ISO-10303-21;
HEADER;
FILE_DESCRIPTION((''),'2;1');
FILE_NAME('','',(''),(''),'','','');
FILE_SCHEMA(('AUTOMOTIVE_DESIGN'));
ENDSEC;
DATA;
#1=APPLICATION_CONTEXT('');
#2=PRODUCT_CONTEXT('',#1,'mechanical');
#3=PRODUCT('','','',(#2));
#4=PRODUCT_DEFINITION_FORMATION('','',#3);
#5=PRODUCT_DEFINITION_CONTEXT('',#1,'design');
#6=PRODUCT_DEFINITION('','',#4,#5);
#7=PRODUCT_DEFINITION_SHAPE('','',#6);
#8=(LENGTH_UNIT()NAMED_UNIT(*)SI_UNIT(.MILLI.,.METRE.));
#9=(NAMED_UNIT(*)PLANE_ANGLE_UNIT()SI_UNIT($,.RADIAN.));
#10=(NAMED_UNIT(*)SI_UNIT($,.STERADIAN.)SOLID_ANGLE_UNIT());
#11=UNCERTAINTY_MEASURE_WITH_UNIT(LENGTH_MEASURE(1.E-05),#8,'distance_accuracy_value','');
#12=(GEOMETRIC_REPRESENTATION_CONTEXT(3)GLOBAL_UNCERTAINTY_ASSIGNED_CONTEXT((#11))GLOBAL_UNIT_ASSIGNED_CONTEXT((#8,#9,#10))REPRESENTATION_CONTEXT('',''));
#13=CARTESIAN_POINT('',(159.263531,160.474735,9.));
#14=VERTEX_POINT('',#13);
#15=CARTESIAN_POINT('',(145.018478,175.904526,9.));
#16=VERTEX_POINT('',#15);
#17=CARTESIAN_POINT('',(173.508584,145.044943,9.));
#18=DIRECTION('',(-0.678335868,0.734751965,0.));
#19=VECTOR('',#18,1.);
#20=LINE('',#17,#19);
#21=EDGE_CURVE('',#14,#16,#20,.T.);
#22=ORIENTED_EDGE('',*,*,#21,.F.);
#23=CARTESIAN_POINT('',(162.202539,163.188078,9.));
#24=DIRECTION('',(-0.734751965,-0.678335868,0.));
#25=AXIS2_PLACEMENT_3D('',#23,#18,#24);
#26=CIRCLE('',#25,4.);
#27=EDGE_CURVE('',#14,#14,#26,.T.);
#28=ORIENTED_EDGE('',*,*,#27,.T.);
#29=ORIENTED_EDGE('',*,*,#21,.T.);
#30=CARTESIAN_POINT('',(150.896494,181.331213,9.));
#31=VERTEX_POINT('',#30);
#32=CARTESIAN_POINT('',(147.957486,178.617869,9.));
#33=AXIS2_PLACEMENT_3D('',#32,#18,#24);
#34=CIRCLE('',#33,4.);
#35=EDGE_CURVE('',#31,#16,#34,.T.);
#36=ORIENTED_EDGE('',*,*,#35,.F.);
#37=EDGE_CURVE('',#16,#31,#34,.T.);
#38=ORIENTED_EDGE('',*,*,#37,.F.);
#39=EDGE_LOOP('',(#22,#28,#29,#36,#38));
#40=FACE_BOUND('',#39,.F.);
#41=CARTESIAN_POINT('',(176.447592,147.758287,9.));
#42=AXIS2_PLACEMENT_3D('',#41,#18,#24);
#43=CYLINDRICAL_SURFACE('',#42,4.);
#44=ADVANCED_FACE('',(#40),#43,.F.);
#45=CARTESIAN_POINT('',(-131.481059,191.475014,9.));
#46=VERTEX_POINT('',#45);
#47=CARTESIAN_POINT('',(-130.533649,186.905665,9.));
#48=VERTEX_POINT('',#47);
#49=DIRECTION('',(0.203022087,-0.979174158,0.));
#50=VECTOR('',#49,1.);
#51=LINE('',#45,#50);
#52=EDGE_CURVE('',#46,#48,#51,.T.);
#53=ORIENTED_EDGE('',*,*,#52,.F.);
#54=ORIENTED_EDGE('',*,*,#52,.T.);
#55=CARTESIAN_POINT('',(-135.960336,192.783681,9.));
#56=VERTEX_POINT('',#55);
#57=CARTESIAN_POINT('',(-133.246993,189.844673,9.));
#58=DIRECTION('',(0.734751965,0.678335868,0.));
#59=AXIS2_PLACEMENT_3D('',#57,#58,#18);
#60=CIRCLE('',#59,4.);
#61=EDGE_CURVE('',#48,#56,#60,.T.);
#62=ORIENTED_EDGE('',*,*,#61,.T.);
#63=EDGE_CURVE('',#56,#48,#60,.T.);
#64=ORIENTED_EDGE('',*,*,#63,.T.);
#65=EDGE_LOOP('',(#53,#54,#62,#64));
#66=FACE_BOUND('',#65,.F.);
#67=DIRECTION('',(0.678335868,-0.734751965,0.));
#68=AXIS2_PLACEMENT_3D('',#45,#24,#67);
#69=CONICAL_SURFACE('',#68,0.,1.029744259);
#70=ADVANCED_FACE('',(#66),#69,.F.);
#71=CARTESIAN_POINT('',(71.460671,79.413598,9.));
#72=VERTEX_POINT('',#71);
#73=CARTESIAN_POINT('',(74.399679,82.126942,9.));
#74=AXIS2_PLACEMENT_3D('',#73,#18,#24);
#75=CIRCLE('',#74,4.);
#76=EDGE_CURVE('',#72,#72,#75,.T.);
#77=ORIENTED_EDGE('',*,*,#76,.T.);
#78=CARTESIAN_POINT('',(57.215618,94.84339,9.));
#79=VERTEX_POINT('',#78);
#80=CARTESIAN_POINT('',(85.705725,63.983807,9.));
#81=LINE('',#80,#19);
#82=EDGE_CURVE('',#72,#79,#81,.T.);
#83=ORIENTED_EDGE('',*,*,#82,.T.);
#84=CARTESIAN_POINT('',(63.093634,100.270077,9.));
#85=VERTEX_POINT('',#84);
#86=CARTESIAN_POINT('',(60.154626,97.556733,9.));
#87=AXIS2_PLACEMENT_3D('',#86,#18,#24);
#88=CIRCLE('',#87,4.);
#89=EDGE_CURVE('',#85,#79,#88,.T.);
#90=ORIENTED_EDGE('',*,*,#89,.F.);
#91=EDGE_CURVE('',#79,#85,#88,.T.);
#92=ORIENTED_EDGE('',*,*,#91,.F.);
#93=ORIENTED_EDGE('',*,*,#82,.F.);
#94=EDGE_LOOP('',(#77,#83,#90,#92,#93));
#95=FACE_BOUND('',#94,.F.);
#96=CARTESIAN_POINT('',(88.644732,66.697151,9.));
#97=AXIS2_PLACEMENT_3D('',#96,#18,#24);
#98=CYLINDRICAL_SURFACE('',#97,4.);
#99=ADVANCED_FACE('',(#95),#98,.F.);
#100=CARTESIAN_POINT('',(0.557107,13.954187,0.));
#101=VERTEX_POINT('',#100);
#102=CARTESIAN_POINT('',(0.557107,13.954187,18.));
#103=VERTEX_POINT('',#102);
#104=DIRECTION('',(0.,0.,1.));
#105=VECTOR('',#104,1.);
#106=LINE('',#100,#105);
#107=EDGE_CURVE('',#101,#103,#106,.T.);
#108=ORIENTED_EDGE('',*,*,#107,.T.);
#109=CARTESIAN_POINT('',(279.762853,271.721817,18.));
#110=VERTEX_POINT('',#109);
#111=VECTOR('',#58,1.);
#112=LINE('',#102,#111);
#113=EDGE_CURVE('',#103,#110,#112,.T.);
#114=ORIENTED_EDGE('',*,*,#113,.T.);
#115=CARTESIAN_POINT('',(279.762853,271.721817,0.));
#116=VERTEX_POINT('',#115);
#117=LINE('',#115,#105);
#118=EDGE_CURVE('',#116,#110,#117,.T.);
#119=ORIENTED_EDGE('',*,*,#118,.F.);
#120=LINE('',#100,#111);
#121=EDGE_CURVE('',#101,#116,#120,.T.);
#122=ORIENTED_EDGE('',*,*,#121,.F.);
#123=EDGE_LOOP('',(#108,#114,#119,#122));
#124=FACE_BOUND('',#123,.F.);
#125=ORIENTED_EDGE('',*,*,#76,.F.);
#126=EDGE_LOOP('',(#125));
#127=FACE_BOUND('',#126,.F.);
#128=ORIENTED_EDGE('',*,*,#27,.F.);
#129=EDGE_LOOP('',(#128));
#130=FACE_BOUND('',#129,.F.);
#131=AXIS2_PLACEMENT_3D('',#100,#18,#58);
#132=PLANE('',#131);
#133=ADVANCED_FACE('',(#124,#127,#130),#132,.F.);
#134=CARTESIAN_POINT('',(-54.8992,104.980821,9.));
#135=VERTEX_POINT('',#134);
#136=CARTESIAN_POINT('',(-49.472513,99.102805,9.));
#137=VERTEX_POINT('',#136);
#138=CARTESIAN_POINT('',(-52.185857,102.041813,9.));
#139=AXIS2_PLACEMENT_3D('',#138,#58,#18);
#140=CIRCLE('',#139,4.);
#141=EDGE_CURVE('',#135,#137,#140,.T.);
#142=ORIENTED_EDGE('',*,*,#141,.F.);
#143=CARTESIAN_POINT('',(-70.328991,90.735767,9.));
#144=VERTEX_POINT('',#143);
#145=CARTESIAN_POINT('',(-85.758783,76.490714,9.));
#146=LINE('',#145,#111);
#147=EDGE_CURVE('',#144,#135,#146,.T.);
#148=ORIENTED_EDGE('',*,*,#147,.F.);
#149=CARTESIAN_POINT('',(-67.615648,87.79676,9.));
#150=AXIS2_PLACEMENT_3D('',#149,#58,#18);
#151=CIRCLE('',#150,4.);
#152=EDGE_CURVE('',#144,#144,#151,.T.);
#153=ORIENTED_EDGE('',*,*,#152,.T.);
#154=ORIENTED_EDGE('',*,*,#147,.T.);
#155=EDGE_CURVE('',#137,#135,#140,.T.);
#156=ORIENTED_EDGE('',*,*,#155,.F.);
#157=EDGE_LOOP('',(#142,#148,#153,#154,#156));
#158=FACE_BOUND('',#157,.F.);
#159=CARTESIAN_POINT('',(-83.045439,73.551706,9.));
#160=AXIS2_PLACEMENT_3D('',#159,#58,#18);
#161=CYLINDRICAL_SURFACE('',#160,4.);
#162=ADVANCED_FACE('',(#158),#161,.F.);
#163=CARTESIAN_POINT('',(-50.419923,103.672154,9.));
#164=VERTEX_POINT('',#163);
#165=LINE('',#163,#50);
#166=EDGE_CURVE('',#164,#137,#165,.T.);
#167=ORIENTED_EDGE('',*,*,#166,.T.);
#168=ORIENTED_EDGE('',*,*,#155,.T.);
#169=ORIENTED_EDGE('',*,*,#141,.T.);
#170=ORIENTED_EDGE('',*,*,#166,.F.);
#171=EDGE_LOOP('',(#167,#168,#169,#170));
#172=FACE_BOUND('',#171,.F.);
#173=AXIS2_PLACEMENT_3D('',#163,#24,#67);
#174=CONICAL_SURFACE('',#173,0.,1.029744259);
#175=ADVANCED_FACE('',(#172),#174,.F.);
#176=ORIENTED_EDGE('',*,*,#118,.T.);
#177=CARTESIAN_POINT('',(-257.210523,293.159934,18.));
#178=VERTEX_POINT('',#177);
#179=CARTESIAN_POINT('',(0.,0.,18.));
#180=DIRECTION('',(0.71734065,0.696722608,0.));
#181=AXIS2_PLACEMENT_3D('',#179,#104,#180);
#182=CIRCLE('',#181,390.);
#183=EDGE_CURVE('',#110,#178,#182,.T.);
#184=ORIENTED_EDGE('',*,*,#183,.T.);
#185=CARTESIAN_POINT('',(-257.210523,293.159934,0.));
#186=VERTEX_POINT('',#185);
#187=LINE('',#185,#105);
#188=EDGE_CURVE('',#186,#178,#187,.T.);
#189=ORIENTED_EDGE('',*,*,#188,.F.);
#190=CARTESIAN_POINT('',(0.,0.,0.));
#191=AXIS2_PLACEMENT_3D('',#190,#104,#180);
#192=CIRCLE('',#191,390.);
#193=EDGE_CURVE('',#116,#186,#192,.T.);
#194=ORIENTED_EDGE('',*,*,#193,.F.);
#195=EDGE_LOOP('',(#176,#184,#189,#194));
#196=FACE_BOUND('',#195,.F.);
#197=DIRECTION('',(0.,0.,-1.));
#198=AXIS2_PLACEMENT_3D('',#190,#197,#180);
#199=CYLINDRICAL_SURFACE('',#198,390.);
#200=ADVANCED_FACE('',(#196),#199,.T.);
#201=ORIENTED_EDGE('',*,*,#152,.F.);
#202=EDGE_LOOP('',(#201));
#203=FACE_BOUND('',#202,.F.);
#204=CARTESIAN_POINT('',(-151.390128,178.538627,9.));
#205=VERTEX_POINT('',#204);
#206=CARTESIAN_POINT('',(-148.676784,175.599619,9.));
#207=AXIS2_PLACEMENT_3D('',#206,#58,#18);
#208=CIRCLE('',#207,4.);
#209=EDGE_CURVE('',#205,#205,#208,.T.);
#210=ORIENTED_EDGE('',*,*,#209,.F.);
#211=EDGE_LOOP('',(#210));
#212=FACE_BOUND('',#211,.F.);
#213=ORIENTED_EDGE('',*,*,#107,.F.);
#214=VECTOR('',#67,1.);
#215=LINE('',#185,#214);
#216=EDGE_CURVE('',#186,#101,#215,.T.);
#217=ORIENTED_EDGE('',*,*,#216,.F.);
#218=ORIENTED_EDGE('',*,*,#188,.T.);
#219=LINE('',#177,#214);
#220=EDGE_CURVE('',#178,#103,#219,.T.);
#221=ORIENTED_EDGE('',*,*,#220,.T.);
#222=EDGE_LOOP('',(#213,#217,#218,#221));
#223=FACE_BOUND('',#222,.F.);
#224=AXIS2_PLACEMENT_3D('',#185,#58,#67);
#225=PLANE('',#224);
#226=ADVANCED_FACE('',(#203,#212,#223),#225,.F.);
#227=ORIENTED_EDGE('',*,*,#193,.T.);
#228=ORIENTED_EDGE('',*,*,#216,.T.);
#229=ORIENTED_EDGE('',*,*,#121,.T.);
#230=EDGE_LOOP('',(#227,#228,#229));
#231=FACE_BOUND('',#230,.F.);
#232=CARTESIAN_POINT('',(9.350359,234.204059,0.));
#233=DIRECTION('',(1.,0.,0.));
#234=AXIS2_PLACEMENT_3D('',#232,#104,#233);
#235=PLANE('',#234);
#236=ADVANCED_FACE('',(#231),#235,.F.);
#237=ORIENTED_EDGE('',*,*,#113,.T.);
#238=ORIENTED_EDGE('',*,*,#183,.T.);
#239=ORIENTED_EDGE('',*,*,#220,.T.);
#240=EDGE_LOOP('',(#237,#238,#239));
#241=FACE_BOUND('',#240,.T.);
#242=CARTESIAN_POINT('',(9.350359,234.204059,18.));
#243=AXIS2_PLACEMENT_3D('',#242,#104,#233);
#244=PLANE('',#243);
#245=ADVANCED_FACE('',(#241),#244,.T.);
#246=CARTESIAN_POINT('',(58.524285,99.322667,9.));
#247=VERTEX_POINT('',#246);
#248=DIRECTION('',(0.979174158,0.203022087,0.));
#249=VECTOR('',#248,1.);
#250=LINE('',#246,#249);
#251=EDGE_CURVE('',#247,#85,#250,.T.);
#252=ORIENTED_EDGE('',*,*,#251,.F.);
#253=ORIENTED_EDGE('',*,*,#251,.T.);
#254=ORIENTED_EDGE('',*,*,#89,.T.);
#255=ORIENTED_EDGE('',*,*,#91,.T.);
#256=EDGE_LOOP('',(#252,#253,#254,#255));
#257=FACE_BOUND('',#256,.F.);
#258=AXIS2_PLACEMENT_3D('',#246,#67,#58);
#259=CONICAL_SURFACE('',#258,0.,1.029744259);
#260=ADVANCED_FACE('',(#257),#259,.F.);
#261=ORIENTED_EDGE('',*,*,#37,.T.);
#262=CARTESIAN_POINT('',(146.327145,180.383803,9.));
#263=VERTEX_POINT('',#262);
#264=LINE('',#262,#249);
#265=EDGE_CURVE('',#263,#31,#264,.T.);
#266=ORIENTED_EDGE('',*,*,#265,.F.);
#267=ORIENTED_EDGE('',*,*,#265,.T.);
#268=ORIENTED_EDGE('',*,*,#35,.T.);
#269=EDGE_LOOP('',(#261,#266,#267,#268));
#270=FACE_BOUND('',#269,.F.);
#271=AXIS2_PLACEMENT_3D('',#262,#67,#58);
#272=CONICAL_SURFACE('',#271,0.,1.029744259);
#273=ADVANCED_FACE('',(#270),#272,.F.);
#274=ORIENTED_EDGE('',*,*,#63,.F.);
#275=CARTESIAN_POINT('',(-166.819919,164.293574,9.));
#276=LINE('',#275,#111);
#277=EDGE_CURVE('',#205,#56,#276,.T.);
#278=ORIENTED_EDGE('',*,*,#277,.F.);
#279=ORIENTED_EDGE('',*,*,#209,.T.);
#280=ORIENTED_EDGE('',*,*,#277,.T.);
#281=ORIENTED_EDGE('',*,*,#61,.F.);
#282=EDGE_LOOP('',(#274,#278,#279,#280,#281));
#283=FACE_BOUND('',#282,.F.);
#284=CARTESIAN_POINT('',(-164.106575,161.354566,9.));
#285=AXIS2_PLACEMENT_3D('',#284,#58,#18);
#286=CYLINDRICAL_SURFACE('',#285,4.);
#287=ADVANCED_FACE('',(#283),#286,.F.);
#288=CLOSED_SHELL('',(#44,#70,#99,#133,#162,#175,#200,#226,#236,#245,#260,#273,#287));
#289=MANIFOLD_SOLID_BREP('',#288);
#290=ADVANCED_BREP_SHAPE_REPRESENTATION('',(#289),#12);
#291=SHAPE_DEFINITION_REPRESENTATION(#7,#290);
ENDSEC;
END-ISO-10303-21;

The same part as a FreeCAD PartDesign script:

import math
import FreeCAD as App
import Part
import Sketcher
from FreeCAD import Vector

doc = App.newDocument("Part")
body = doc.addObject("PartDesign::Body", "Body")

# Sketch on XY plane
sketch1 = body.newObject("Sketcher::SketchObject", "Sketch")
sketch1.AttachmentSupport = (doc.getObject("XY_Plane"), [""])
sketch1.MapMode = "FlatFace"
sketch1.addGeometry([
    Part.ArcOfCircle(Part.Circle(Vector(0, 0, 0), Vector(0, 0, 1), 390), math.radians(44), math.radians(131)),
    Part.LineSegment(Vector(-257, 293, 0), Vector(1, 14, 0)),
    Part.LineSegment(Vector(1, 14, 0), Vector(280, 272, 0)),
], False)
sketch1.addConstraint([
    Sketcher.Constraint("Coincident", 0, 2, 1, 1),
    Sketcher.Constraint("Coincident", 1, 2, 2, 1),
    Sketcher.Constraint("Coincident", 2, 2, 0, 1),
    Sketcher.Constraint("Coincident", 0, 3, -1, 1),
    Sketcher.Constraint("Perpendicular", 1, 2),
    Sketcher.Constraint("Equal", 1, 2),
    Sketcher.Constraint("Radius", 0, 390.0),
    Sketcher.Constraint("Distance", 1, 380.0),
    Sketcher.Constraint("DistanceY", 1, 2, 2, 2, 257.76763),
])
pad1 = body.newObject("PartDesign::Pad", "Pad")
pad1.Profile = sketch1
pad1.Length = 18

# Sketch on an angled plane
sketch2 = body.newObject("Sketcher::SketchObject", "Sketch001")
sketch2.Placement = App.Placement(Vector(-6.69854, 7.255647, 0), App.Rotation(Vector(0.734751965, 0.678335868, 0), Vector(0, 0, 1), Vector(0.678335868, -0.734751965, 0), "ZXY"))
sketch2.addGeometry([
    Part.Circle(Vector(110.4, 9, 0), Vector(0, 0, 1), 4),
    Part.Circle(Vector(229.9, 9, 0), Vector(0, 0, 1), 4),
], False)
sketch2.addConstraint([
    Sketcher.Constraint("Equal", 0, 1),
    Sketcher.Constraint("Horizontal", 0, 3, 1, 3),
    Sketcher.Constraint("Diameter", 0, 8.0),
    Sketcher.Constraint("DistanceY", -1, 1, 0, 3, 9.0),
    Sketcher.Constraint("DistanceX", 0, 3, 1, 3, 119.5),
    Sketcher.Constraint("DistanceX", -1, 1, 0, 3, 110.374961),
])
doc.recompute()
hole = body.newObject("PartDesign::Hole", "Hole")
hole.Profile = sketch2
hole.ThreadType = "None"
hole.Diameter = 8
hole.DepthType = "Dimension"
hole.Depth = 21
hole.DrillPoint = "Angled"
hole.DrillPointAngle = 118

# Sketch on an angled plane
sketch3 = body.newObject("Sketcher::SketchObject", "Sketch002")
sketch3.Placement = App.Placement(Vector(7.255647, 6.69854, 0), App.Rotation(Vector(0.678335868, -0.734751965, 0), Vector(0, 0, 1), Vector(-0.734751965, -0.678335868, 0), "ZXY"))
sketch3.addGeometry([
    Part.Circle(Vector(-110.4, 9, 0), Vector(0, 0, 1), 4),
    Part.Circle(Vector(-229.9, 9, 0), Vector(0, 0, 1), 4),
], False)
sketch3.addConstraint([
    Sketcher.Constraint("Equal", 0, 1),
    Sketcher.Constraint("Horizontal", 0, 3, 1, 3),
    Sketcher.Constraint("Diameter", 0, 8.0),
    Sketcher.Constraint("DistanceY", -1, 1, 0, 3, 9.0),
    Sketcher.Constraint("DistanceX", 1, 3, 0, 3, 119.5),
    Sketcher.Constraint("DistanceX", 0, 3, -1, 1, 110.374961),
])
doc.recompute()
hole2 = body.newObject("PartDesign::Hole", "Hole001")
hole2.Profile = sketch3
hole2.ThreadType = "None"
hole2.Diameter = 8
hole2.DepthType = "Dimension"
hole2.Depth = 21
hole2.DrillPoint = "Angled"
hole2.DrillPointAngle = 118

doc.recompute()
